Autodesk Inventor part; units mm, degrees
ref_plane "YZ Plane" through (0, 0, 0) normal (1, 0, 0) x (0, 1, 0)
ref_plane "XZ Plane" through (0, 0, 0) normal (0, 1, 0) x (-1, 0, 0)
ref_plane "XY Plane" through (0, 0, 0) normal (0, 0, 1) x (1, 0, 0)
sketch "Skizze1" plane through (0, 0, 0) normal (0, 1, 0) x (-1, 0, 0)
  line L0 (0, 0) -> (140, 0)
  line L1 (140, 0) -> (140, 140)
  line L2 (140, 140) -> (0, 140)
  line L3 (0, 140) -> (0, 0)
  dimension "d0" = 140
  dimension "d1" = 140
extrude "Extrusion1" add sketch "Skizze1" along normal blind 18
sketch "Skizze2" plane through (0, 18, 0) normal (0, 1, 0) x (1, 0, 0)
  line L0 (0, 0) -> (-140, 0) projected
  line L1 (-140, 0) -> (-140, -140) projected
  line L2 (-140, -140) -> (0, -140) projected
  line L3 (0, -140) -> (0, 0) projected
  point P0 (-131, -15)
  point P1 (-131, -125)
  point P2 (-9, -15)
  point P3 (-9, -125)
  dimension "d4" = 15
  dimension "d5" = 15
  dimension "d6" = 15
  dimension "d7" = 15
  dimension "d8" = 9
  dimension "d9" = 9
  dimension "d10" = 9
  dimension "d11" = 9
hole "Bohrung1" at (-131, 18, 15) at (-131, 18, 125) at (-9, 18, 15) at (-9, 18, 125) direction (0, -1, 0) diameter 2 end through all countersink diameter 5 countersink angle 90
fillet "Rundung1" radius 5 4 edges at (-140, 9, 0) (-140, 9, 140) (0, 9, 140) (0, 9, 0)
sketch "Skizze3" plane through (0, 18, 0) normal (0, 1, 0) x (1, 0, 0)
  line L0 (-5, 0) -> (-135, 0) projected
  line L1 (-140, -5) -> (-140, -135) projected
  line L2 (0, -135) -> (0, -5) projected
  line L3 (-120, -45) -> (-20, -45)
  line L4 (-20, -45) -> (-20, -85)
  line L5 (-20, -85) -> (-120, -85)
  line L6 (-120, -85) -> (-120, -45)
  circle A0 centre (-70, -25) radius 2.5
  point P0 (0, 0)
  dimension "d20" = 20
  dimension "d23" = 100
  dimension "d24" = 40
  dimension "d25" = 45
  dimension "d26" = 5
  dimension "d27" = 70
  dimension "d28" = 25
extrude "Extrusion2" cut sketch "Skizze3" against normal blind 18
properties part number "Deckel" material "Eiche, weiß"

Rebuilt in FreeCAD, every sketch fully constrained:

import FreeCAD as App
import Part
import Sketcher

V = App.Vector
Q = App.Units.Quantity


def edges_at(feature, points):
    """Names of the edges that pass closest to the given points."""
    edges = feature.Shape.Edges
    near = lambda p: min(range(len(edges)), key=lambda i: edges[i].distToShape(Part.Vertex(*p))[0])
    return sorted({f"Edge{near(p) + 1}" for p in points})

doc = App.newDocument("Part")
body = doc.addObject("PartDesign::Body", "Body")

# Sketch on XZ plane
sketch1 = body.newObject("Sketcher::SketchObject", "Sketch")
sketch1.AttachmentSupport = (doc.getObject("XZ_Plane"), [""])
sketch1.MapMode = "FlatFace"
sketch1.addGeometry([
    Part.LineSegment(V(0, 140, 0), V(0, 0, 0)),
    Part.LineSegment(V(0, 0, 0), V(-140, 0, 0)),
    Part.LineSegment(V(-140, 0, 0), V(-140, 140, 0)),
    Part.LineSegment(V(-140, 140, 0), V(0, 140, 0)),
], False)
sketch1.addConstraint([
    Sketcher.Constraint("Coincident", 0, 2, 1, 1),
    Sketcher.Constraint("Coincident", 1, 2, 2, 1),
    Sketcher.Constraint("Coincident", 2, 2, 3, 1),
    Sketcher.Constraint("Coincident", 3, 2, 0, 1),
    Sketcher.Constraint("Vertical", 0),
    Sketcher.Constraint("Horizontal", 1),
    Sketcher.Constraint("Vertical", 2),
    Sketcher.Constraint("Horizontal", 3),
    Sketcher.Constraint("Coincident", 0, 2, -1, 1),
    Sketcher.Constraint("Equal", 3, 0),
    Sketcher.Constraint("DistanceX", 1, 2, 1, 1, Q("140 mm")),
])
pad1 = body.newObject("PartDesign::Pad", "Pad")
pad1.Profile = sketch1
pad1.Length = 18
pad1.Reversed = True

# Sketch on XZ plane
sketch2 = body.newObject("Sketcher::SketchObject", "Sketch001")
sketch2.AttachmentSupport = (doc.getObject("XZ_Plane"), [""])
sketch2.MapMode = "FlatFace"
sketch2.AttachmentOffset = App.Placement(V(0, 0, -18), App.Rotation())
sketch2.addGeometry([
    Part.Circle(V(-131, 15, 0), V(0, 0, 1), 1),
    Part.Circle(V(-131, 125, 0), V(0, 0, 1), 1),
    Part.Circle(V(-9, 15, 0), V(0, 0, 1), 1),
    Part.Circle(V(-9, 125, 0), V(0, 0, 1), 1),
], False)
sketch2.addConstraint([
    Sketcher.Constraint("Equal", 0, 1),
    Sketcher.Constraint("Equal", 1, 2),
    Sketcher.Constraint("Equal", 2, 3),
    Sketcher.Constraint("Horizontal", 0, 3, 2, 3),
    Sketcher.Constraint("Horizontal", 1, 3, 3, 3),
    Sketcher.Constraint("Vertical", 0, 3, 1, 3),
    Sketcher.Constraint("Vertical", 2, 3, 3, 3),
    Sketcher.Constraint("Diameter", 0, Q("2 mm")),
    Sketcher.Constraint("DistanceX", 0, 3, -1, 1, Q("131 mm")),
    Sketcher.Constraint("DistanceY", -1, 1, 0, 3, Q("15 mm")),
    Sketcher.Constraint("DistanceY", -1, 1, 1, 3, Q("125 mm")),
    Sketcher.Constraint("DistanceX", 2, 3, -1, 1, Q("9 mm")),
])
doc.recompute()
hole = body.newObject("PartDesign::Hole", "Hole")
hole.Profile = sketch2
hole.ThreadType = "None"
hole.Diameter = 2
hole.DepthType = "ThroughAll"
hole.HoleCutType = "Countersink"
hole.HoleCutDiameter = 5
hole.HoleCutCountersinkAngle = 90
hole.Reversed = True
doc.recompute()

fillet = body.newObject("PartDesign::Fillet", "Fillet")
fillet.Base = (hole, edges_at(hole, [
    (-140, 9, 0),
    (-140, 9, 140),
    (0, 9, 140),
    (0, 9, 0),
]))
fillet.Radius = 5

# Sketch on XZ plane
sketch3 = body.newObject("Sketcher::SketchObject", "Sketch002")
sketch3.AttachmentSupport = (doc.getObject("XZ_Plane"), [""])
sketch3.MapMode = "FlatFace"
sketch3.AttachmentOffset = App.Placement(V(0, 0, -18), App.Rotation())
sketch3.addGeometry([
    Part.LineSegment(V(-20, 45, 0), V(-120, 45, 0)),  # 0
    Part.LineSegment(V(-120, 45, 0), V(-120, 85, 0)),  # 1
    Part.LineSegment(V(-120, 85, 0), V(-20, 85, 0)),  # 2
    Part.LineSegment(V(-20, 85, 0), V(-20, 45, 0)),  # 3
    Part.Circle(V(-70, 25, 0), V(0, 0, 1), 2.5),  # 4
], False)
sketch3.addConstraint([
    Sketcher.Constraint("Coincident", 0, 2, 1, 1),
    Sketcher.Constraint("Coincident", 1, 2, 2, 1),
    Sketcher.Constraint("Coincident", 2, 2, 3, 1),
    Sketcher.Constraint("Coincident", 3, 2, 0, 1),
    Sketcher.Constraint("Horizontal", 0),
    Sketcher.Constraint("Vertical", 1),
    Sketcher.Constraint("Horizontal", 2),
    Sketcher.Constraint("Vertical", 3),
    Sketcher.Constraint("Diameter", 4, Q("5 mm")),
    Sketcher.Constraint("DistanceX", 0, 2, 0, 1, Q("100 mm")),
    Sketcher.Constraint("DistanceY", 1, 1, 1, 2, Q("40 mm")),
    Sketcher.Constraint("DistanceX", 4, 3, -1, 1, Q("70 mm")),
    Sketcher.Constraint("DistanceY", -1, 1, 4, 3, Q("25 mm")),
    Sketcher.Constraint("DistanceY", -1, 1, 0, 2, Q("45 mm")),
    Sketcher.Constraint("DistanceX", 2, 2, -1, 1, Q("20 mm")),
])
pocket1 = body.newObject("PartDesign::Pocket", "Pocket")
pocket1.Profile = sketch3
pocket1.Length = 18
pocket1.Reversed = True

doc.recompute()
